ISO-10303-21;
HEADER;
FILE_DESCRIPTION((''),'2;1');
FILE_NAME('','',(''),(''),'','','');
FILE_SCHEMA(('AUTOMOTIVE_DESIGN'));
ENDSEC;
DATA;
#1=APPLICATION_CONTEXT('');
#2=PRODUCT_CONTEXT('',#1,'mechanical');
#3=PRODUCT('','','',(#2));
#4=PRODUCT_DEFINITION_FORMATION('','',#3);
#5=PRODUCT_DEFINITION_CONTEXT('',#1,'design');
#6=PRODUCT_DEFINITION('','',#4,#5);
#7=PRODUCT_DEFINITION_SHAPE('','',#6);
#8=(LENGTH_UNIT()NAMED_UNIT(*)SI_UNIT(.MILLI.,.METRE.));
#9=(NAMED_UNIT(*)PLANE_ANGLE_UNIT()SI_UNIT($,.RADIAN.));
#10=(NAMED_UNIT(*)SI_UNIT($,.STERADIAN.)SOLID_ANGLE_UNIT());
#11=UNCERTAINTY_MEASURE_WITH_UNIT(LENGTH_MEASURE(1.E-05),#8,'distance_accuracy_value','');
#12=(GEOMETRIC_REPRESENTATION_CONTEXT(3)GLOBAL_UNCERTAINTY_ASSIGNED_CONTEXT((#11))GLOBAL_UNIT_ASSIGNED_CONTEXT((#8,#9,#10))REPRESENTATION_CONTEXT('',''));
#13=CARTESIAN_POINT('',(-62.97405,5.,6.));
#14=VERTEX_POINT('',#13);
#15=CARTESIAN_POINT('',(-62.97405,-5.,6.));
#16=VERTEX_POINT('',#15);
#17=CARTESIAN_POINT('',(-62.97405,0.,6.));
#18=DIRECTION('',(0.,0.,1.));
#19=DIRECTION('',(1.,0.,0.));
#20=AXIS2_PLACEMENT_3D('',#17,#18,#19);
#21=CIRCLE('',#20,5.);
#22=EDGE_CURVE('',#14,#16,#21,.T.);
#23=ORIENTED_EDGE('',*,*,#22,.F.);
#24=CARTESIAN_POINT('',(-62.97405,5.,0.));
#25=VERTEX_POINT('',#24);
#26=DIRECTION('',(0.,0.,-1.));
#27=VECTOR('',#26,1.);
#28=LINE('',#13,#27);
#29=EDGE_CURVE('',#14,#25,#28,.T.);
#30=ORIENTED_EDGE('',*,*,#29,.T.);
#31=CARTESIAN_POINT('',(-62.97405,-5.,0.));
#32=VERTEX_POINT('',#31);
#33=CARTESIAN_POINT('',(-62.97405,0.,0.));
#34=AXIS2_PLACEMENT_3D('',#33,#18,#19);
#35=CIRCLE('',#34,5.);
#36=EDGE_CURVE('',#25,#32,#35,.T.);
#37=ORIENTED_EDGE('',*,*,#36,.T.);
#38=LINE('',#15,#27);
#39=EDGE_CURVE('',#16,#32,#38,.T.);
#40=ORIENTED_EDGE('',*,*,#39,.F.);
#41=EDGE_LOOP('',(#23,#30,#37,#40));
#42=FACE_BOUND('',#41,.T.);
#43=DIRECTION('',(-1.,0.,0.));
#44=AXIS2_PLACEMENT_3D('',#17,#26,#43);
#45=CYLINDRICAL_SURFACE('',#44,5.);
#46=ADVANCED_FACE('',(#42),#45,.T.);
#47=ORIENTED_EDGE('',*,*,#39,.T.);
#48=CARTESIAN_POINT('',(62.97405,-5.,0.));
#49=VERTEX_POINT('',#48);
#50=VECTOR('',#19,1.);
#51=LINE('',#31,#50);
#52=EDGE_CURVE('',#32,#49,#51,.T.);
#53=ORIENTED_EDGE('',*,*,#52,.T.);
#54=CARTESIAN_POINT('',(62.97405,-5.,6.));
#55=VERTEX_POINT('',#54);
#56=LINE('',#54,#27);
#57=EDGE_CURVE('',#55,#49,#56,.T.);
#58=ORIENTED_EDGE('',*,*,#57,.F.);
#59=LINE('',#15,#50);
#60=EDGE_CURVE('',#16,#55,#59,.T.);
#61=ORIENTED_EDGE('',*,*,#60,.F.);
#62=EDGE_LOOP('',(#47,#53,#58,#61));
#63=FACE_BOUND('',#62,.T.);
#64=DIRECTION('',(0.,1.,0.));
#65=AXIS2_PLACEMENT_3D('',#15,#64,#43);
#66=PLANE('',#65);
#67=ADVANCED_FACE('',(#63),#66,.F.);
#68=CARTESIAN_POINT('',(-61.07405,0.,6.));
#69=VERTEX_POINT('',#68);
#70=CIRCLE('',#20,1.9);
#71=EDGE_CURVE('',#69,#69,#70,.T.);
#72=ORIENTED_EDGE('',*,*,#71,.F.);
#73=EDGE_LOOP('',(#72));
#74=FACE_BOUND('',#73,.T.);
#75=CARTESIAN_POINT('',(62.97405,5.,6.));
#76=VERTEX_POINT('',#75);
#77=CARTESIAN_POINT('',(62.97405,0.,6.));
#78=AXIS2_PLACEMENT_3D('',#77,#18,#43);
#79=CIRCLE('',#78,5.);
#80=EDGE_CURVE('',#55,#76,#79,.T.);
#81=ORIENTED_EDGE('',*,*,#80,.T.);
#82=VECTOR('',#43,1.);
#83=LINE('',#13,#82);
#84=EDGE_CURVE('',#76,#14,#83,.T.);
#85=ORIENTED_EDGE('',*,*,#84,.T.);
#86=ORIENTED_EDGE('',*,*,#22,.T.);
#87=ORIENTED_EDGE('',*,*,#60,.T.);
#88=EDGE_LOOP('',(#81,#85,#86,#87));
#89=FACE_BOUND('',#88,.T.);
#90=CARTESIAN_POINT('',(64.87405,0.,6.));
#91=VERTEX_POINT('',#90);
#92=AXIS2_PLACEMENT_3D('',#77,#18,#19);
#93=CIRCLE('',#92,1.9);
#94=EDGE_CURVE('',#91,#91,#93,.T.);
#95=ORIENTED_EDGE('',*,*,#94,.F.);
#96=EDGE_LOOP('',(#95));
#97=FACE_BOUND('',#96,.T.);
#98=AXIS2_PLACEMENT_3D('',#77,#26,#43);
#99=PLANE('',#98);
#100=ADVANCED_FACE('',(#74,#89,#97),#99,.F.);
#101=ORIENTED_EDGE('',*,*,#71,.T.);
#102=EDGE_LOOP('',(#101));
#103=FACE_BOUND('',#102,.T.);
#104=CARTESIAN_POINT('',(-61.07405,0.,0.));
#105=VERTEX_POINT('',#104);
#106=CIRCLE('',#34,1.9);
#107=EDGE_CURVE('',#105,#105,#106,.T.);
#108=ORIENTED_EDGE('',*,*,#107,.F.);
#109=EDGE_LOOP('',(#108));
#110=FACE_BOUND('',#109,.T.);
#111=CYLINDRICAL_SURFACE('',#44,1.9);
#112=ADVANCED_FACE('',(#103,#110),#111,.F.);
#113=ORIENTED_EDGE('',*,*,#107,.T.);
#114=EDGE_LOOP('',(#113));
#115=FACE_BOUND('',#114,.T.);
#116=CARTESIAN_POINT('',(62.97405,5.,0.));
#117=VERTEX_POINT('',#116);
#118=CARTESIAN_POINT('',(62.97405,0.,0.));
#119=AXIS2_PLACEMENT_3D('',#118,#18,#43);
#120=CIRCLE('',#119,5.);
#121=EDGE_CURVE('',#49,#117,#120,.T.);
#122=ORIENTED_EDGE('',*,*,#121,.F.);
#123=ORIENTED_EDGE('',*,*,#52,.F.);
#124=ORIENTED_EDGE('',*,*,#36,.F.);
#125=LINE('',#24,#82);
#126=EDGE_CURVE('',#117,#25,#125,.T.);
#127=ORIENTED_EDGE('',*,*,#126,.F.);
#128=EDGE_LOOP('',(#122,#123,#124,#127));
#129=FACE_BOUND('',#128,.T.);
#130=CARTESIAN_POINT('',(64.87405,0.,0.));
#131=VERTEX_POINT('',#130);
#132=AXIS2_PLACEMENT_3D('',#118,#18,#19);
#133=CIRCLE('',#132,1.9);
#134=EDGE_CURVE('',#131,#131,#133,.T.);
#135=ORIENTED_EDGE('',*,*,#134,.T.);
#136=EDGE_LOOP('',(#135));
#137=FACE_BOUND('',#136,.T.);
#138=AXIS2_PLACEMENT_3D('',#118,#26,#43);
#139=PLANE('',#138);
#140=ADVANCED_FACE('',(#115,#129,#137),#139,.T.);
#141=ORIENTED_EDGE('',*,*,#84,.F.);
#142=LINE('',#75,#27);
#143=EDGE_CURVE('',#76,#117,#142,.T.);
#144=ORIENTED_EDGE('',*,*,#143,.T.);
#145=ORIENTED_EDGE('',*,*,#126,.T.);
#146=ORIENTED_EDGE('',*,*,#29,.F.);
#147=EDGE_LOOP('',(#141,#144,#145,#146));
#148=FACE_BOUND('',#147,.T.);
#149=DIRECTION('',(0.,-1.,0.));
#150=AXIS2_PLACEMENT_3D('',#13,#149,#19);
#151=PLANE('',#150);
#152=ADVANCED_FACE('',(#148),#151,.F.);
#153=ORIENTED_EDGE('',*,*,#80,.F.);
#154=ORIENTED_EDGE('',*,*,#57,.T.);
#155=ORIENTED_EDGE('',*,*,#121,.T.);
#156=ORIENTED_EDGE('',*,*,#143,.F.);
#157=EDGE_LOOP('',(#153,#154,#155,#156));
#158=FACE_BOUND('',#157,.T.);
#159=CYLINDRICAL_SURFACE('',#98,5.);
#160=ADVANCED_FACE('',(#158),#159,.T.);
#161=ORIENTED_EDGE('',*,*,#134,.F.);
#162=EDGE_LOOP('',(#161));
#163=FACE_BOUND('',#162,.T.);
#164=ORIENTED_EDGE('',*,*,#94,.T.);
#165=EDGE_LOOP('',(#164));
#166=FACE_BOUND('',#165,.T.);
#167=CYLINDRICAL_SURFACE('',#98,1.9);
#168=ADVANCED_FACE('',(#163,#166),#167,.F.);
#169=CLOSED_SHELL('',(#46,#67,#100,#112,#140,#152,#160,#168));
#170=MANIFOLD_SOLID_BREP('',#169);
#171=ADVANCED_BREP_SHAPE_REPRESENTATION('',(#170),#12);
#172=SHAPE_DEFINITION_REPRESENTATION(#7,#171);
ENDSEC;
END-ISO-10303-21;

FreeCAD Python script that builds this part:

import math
import FreeCAD as App
import Part
import Sketcher

V = App.Vector

doc = App.newDocument("Part")
body = doc.addObject("PartDesign::Body", "Body")

sketch1 = doc.addObject("Sketcher::SketchObject", "Sketch")
body.addObject(sketch1)
sketch1.AttachmentSupport = (doc.XY_Plane, [""])
sketch1.MapMode = "FlatFace"
sketch1.addGeometry(Part.LineSegment(V(62.97405, 5, 0), V(-62.97405, 5, 0)), False)
sketch1.addGeometry(Part.ArcOfCircle(Part.Circle(V(-62.97405, 0, 0), V(0, 0, 1), 5), math.radians(90), math.radians(270)), False)
sketch1.addGeometry(Part.LineSegment(V(-62.97405, -5, 0), V(62.97405, -5, 0)), False)
sketch1.addGeometry(Part.ArcOfCircle(Part.Circle(V(62.97405, 0, 0), V(0, 0, 1), 5), math.radians(-90), math.radians(90)), False)
sketch1.addGeometry(Part.Circle(V(62.97405, 0, 0), V(0, 0, 1), 1.9), False)
sketch1.addGeometry(Part.Circle(V(-62.97405, 0, 0), V(0, 0, 1), 1.9), False)
sketch1.addConstraint(Sketcher.Constraint("Tangent", 0, 2, 1, 1))
sketch1.addConstraint(Sketcher.Constraint("Tangent", 1, 2, 2, 1))
sketch1.addConstraint(Sketcher.Constraint("Tangent", 2, 2, 3, 1))
sketch1.addConstraint(Sketcher.Constraint("Tangent", 3, 2, 0, 1))
sketch1.addConstraint(Sketcher.Constraint("Horizontal", 0))
sketch1.addConstraint(Sketcher.Constraint("Horizontal", 2))
sketch1.addConstraint(Sketcher.Constraint("Coincident", 4, 3, 3, 3))
sketch1.addConstraint(Sketcher.Constraint("Coincident", 5, 3, 1, 3))
sketch1.addConstraint(Sketcher.Constraint("Equal", 4, 5))
sketch1.addConstraint(Sketcher.Constraint("Symmetric", 1, 3, 3, 3, -1, 1))
sketch1.addConstraint(Sketcher.Constraint("Radius", 1, 5.0))
sketch1.addConstraint(Sketcher.Constraint("Diameter", 4, 3.8))
sketch1.addConstraint(Sketcher.Constraint("DistanceX", 0, 2, 0, 1, 125.9481))
pad1 = doc.addObject("PartDesign::Pad", "Pad")
body.addObject(pad1)
pad1.Profile = sketch1
pad1.Length = 6

doc.recompute()
